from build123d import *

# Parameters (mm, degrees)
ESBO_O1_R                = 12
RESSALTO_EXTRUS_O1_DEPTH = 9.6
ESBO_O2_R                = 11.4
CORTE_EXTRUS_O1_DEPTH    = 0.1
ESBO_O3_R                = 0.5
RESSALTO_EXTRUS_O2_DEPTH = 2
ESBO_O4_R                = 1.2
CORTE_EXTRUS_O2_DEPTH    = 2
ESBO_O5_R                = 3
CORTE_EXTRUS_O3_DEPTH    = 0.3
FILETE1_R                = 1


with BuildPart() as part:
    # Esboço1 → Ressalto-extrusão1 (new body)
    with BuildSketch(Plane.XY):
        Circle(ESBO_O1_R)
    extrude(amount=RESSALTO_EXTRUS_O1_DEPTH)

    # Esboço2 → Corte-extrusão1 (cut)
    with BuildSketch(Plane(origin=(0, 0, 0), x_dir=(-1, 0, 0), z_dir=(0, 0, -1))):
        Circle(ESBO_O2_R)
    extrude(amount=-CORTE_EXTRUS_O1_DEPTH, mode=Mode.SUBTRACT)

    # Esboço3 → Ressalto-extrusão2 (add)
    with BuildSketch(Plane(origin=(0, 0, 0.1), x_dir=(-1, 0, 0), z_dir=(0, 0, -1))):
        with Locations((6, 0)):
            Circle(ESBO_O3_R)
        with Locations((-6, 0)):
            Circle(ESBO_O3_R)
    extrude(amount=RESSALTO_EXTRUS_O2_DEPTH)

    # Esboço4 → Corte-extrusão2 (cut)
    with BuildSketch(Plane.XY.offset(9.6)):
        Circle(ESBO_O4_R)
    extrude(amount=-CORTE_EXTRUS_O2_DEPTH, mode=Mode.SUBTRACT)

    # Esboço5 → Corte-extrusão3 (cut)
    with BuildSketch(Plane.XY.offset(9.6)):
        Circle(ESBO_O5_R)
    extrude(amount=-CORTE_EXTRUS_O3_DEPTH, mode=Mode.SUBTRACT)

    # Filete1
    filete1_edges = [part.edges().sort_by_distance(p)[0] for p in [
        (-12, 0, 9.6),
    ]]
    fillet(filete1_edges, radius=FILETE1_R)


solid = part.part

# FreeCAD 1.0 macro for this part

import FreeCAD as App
import Part
import Sketcher

V = App.Vector
Q = App.Units.Quantity


def edges_at(feature, points):
    """Names of the edges that pass closest to the given points."""
    edges = feature.Shape.Edges
    near = lambda p: min(range(len(edges)), key=lambda i: edges[i].distToShape(Part.Vertex(*p))[0])
    return sorted({f"Edge{near(p) + 1}" for p in points})

doc = App.newDocument("Part")
params = doc.addObject("Spreadsheet::Sheet", "Params")
for row, (alias, value) in enumerate([
    ("sketch1_diameter", "24 mm"),
    ("pad1_length", "9.6 mm"),
    ("sketch2_diameter", "22.8 mm"),
    ("pocket1_length", "0.1 mm"),
    ("sketch3_diameter", "1 mm"),
    ("pad2_length", "2 mm"),
    ("sketch4_diameter", "2.4 mm"),
    ("pocket2_length", "2 mm"),
    ("sketch5_diameter", "6 mm"),
    ("pocket3_length", "0.3 mm"),
    ("fillet_radius", "1 mm"),
], start=1):
    params.set(f"A{row}", alias)
    params.set(f"B{row}", "=" + value)
    params.setAlias(f"B{row}", alias)

body = doc.addObject("PartDesign::Body", "Body")

# Sketch on XY plane
sketch1 = body.newObject("Sketcher::SketchObject", "Sketch")
sketch1.AttachmentSupport = (doc.getObject("XY_Plane"), [""])
sketch1.MapMode = "FlatFace"
sketch1.addGeometry(Part.Circle(V(0, 0, 0), V(0, 0, 1), 12), False)
sketch1.addConstraint([
    Sketcher.Constraint("Coincident", 0, 3, -1, 1),
    Sketcher.Constraint("Diameter", 0, Q("24 mm")),
])
sketch1.setExpression("Constraints[1]", "Params.sketch1_diameter")
pad1 = body.newObject("PartDesign::Pad", "Pad")
pad1.Profile = sketch1
pad1.setExpression("Length", "Params.pad1_length")

# Sketch on XY plane
sketch2 = body.newObject("Sketcher::SketchObject", "Sketch001")
sketch2.AttachmentSupport = (doc.getObject("XY_Plane"), [""])
sketch2.MapMode = "FlatFace"
sketch2.addGeometry(Part.Circle(V(0, 0, 0), V(0, 0, 1), 11), False)
sketch2.addConstraint([
    Sketcher.Constraint("Coincident", 0, 3, -1, 1),
    Sketcher.Constraint("Diameter", 0, Q("22.8 mm")),
])
sketch2.setExpression("Constraints[1]", "Params.sketch2_diameter")
pocket1 = body.newObject("PartDesign::Pocket", "Pocket")
pocket1.Profile = sketch2
pocket1.setExpression("Length", "Params.pocket1_length")
pocket1.Reversed = True

# Sketch on XY plane
sketch3 = body.newObject("Sketcher::SketchObject", "Sketch002")
sketch3.AttachmentSupport = (doc.getObject("XY_Plane"), [""])
sketch3.MapMode = "FlatFace"
sketch3.AttachmentOffset = App.Placement(V(0, 0, 0.1), App.Rotation())
sketch3.addGeometry([
    Part.Circle(V(-6, 0, 0), V(0, 0, 1), 0.5),
    Part.Circle(V(6, 0, 0), V(0, 0, 1), 0.5),
], False)
sketch3.addConstraint([
    Sketcher.Constraint("Equal", 0, 1),
    Sketcher.Constraint("Symmetric", 0, 3, 1, 3, -1, 1),
    Sketcher.Constraint("PointOnObject", 0, 3, -1),
    Sketcher.Constraint("Diameter", 0, Q("1 mm")),
    Sketcher.Constraint("DistanceX", 0, 3, -1, 1, Q("6 mm")),
])
sketch3.setExpression("Constraints[3]", "Params.sketch3_diameter")
pad2 = body.newObject("PartDesign::Pad", "Pad001")
pad2.Profile = sketch3
pad2.setExpression("Length", "Params.pad2_length")
pad2.Reversed = True

# Sketch on XY plane
sketch4 = body.newObject("Sketcher::SketchObject", "Sketch003")
sketch4.AttachmentSupport = (doc.getObject("XY_Plane"), [""])
sketch4.MapMode = "FlatFace"
sketch4.AttachmentOffset = App.Placement(V(0, 0, 9.6), App.Rotation())
sketch4.addGeometry(Part.Circle(V(0, 0, 0), V(0, 0, 1), 1.2), False)
sketch4.addConstraint([
    Sketcher.Constraint("Coincident", 0, 3, -1, 1),
    Sketcher.Constraint("Diameter", 0, Q("2.4 mm")),
])
sketch4.setExpression("Constraints[1]", "Params.sketch4_diameter")
pocket2 = body.newObject("PartDesign::Pocket", "Pocket001")
pocket2.Profile = sketch4
pocket2.setExpression("Length", "Params.pocket2_length")

# Sketch on XY plane
sketch5 = body.newObject("Sketcher::SketchObject", "Sketch004")
sketch5.AttachmentSupport = (doc.getObject("XY_Plane"), [""])
sketch5.MapMode = "FlatFace"
sketch5.AttachmentOffset = App.Placement(V(0, 0, 9.6), App.Rotation())
sketch5.addGeometry(Part.Circle(V(0, 0, 0), V(0, 0, 1), 3), False)
sketch5.addConstraint([
    Sketcher.Constraint("Coincident", 0, 3, -1, 1),
    Sketcher.Constraint("Diameter", 0, Q("6 mm")),
])
sketch5.setExpression("Constraints[1]", "Params.sketch5_diameter")
pocket3 = body.newObject("PartDesign::Pocket", "Pocket002")
pocket3.Profile = sketch5
pocket3.setExpression("Length", "Params.pocket3_length")
doc.recompute()

fillet = body.newObject("PartDesign::Fillet", "Fillet")
fillet.Base = (pocket3, edges_at(pocket3, [(-12, 0, 9.6)]))
fillet.setExpression("Radius", "Params.fillet_radius")

doc.recompute()
